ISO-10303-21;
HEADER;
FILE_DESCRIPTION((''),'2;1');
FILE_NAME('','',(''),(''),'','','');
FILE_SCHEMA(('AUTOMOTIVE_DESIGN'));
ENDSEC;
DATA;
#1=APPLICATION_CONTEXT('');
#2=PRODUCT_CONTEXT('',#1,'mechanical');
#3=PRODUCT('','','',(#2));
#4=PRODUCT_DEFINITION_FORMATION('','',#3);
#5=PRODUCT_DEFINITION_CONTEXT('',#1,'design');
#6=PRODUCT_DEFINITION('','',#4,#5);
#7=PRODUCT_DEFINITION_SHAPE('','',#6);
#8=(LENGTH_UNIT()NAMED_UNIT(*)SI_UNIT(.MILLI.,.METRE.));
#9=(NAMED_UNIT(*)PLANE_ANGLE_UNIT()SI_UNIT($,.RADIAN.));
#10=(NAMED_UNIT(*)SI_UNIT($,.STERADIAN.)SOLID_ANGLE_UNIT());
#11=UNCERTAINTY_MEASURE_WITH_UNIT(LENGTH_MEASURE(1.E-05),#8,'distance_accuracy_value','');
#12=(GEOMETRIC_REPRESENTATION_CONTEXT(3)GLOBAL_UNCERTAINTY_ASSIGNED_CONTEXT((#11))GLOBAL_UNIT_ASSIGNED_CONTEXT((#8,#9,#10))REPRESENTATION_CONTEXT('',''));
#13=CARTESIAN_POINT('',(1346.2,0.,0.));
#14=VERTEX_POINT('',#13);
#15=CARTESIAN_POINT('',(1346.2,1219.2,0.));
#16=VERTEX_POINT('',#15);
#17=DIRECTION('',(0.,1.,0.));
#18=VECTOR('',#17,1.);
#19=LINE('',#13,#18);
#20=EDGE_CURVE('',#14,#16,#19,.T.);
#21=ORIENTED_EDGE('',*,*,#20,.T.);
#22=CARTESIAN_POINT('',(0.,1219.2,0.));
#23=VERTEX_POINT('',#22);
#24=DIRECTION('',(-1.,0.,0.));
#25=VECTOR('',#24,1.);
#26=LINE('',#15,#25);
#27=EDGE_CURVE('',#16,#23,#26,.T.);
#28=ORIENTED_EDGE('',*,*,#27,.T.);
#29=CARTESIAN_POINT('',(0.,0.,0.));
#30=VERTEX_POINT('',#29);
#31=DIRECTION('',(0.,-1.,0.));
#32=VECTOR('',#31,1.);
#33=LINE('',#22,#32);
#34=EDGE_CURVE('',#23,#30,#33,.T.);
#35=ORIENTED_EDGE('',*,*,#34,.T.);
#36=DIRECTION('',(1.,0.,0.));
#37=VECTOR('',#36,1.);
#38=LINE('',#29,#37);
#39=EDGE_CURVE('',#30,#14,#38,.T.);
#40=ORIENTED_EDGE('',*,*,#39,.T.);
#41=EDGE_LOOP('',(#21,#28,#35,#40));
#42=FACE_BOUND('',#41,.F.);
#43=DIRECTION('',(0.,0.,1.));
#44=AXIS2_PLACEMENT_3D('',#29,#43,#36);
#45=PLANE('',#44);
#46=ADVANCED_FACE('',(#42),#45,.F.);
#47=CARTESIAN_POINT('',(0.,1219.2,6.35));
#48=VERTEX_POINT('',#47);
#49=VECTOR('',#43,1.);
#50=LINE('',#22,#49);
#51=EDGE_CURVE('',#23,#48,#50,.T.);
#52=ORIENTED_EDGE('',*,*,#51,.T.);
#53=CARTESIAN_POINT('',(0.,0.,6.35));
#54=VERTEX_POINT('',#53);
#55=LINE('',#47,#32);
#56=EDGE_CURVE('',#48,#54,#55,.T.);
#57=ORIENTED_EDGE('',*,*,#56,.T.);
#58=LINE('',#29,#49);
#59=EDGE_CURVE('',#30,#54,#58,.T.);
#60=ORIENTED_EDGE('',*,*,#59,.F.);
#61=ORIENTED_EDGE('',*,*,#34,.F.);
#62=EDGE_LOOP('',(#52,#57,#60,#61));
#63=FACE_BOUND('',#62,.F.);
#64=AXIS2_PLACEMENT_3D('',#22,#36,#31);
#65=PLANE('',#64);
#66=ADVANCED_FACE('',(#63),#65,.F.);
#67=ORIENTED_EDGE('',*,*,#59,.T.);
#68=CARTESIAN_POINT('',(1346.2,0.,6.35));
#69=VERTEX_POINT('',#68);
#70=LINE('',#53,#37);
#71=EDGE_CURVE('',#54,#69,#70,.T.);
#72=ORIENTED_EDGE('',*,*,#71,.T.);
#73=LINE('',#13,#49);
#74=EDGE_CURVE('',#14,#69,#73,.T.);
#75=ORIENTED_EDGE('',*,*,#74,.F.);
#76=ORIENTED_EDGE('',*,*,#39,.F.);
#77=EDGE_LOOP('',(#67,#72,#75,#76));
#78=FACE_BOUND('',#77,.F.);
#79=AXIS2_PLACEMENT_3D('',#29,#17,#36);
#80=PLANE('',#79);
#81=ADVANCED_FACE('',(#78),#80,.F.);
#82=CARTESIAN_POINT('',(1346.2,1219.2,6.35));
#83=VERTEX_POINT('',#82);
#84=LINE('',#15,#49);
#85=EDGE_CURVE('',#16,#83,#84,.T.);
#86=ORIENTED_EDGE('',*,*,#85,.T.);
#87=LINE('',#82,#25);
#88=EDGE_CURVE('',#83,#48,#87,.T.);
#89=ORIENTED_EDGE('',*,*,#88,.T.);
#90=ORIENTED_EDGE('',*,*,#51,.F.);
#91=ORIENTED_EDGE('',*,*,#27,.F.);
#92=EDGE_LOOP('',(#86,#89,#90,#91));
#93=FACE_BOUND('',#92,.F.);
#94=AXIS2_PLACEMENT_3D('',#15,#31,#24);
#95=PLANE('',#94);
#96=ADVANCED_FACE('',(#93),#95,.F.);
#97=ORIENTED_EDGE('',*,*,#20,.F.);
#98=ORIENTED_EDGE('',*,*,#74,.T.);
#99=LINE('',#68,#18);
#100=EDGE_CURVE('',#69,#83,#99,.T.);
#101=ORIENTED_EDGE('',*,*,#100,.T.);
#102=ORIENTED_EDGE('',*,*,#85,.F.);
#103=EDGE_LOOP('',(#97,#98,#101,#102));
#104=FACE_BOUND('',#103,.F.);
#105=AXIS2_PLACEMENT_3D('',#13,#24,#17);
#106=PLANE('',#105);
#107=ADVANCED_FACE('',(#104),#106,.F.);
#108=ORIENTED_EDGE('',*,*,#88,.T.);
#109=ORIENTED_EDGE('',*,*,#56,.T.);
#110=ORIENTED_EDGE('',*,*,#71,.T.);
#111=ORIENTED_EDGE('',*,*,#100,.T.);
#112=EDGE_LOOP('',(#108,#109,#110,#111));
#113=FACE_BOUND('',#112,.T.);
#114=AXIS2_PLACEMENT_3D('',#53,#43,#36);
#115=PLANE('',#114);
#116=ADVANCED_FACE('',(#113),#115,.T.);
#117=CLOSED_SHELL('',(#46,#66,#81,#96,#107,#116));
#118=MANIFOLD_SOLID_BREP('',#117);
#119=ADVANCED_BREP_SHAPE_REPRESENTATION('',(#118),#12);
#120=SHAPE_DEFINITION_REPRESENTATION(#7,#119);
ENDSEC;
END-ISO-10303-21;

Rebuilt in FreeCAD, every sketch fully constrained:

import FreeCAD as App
import Part
import Sketcher
from FreeCAD import Vector
Q = App.Units.Quantity

doc = App.newDocument("Part")
body = doc.addObject("PartDesign::Body", "Body")

sketch1 = doc.addObject("Sketcher::SketchObject", "Sketch")
body.addObject(sketch1)
sketch1.AttachmentSupport = (doc.XY_Plane, [""])
sketch1.MapMode = "FlatFace"
sketch1.addGeometry(Part.LineSegment(Vector(0, 1219, 0), Vector(0, 0, 0)), False)
sketch1.addGeometry(Part.LineSegment(Vector(0, 0, 0), Vector(1346, 0, 0)), False)
sketch1.addGeometry(Part.LineSegment(Vector(1346, 0, 0), Vector(1346, 1219, 0)), False)
sketch1.addGeometry(Part.LineSegment(Vector(1346, 1219, 0), Vector(0, 1219, 0)), False)
sketch1.addConstraint(Sketcher.Constraint("Coincident", 0, 2, 1, 1))
sketch1.addConstraint(Sketcher.Constraint("Coincident", 1, 2, 2, 1))
sketch1.addConstraint(Sketcher.Constraint("Coincident", 2, 2, 3, 1))
sketch1.addConstraint(Sketcher.Constraint("Coincident", 3, 2, 0, 1))
sketch1.addConstraint(Sketcher.Constraint("Vertical", 0))
sketch1.addConstraint(Sketcher.Constraint("Horizontal", 1))
sketch1.addConstraint(Sketcher.Constraint("Vertical", 2))
sketch1.addConstraint(Sketcher.Constraint("Horizontal", 3))
sketch1.addConstraint(Sketcher.Constraint("Coincident", 0, 2, -1, 1))
sketch1.addConstraint(Sketcher.Constraint("DistanceX", 1, 1, 1, 2, Q("53 in")))
sketch1.addConstraint(Sketcher.Constraint("DistanceY", 0, 2, 0, 1, Q("48 in")))
pad1 = doc.addObject("PartDesign::Pad", "Pad")
body.addObject(pad1)
pad1.Profile = sketch1
pad1.Length = Q("0.25 in")

doc.recompute()
